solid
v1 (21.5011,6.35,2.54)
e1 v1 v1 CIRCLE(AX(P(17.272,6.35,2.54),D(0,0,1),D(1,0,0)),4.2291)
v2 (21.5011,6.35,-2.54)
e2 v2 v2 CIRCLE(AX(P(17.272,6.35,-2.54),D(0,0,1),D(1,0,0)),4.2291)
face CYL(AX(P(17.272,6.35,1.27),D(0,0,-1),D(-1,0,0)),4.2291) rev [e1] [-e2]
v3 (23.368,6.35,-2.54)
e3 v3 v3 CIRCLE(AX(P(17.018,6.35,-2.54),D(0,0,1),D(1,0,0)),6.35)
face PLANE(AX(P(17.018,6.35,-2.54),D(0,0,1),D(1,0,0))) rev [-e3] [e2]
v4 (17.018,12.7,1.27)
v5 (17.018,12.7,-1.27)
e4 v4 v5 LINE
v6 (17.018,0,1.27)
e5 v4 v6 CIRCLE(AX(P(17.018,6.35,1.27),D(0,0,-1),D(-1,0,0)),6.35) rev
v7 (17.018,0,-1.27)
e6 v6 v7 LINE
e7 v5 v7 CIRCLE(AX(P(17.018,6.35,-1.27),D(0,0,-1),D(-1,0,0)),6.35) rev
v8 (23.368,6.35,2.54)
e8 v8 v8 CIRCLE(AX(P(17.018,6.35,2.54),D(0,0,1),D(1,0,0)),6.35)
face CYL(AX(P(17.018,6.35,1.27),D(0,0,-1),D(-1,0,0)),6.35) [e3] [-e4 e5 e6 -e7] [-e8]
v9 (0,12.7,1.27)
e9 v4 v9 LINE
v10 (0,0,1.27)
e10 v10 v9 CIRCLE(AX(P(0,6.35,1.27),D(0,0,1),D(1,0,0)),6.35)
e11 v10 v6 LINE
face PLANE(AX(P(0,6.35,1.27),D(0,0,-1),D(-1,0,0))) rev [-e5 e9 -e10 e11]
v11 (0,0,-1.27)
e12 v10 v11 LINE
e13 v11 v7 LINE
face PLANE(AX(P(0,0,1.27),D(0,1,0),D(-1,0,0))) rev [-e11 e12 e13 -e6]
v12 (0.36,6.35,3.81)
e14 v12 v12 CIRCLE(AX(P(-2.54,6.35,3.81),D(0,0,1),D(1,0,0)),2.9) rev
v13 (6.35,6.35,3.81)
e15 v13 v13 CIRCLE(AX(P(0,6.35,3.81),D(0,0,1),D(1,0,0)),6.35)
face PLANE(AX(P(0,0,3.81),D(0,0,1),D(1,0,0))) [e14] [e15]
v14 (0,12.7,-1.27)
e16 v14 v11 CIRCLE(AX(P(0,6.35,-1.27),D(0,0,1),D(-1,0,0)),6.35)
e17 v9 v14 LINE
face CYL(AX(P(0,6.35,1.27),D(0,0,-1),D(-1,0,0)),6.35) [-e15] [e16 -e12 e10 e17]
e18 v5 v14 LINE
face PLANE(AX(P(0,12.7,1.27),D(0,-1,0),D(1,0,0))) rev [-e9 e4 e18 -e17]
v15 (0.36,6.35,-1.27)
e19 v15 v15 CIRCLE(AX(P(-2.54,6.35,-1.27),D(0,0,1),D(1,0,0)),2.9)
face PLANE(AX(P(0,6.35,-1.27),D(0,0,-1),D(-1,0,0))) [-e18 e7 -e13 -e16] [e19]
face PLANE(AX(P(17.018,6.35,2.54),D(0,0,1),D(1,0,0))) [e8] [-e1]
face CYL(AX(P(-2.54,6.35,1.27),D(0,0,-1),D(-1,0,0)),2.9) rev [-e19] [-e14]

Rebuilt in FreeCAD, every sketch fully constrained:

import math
import FreeCAD as App
import Part
import Sketcher
from FreeCAD import Vector
Q = App.Units.Quantity

doc = App.newDocument("Part")
body = doc.addObject("PartDesign::Body", "Body")

# Sketch on XY plane
sketch1 = doc.addObject("Sketcher::SketchObject", "Sketch")
body.addObject(sketch1)
sketch1.AttachmentSupport = (doc.XY_Plane, [""])
sketch1.MapMode = "FlatFace"
sketch1.addGeometry(Part.LineSegment(Vector(17, 12.7, 0), Vector(0, 12.7, 0)), False)
sketch1.addGeometry(Part.ArcOfCircle(Part.Circle(Vector(0, 6.3, 0), Vector(0, 0, 1), 6.3), math.radians(90), math.radians(270)), False)
sketch1.addGeometry(Part.LineSegment(Vector(0, 0, 0), Vector(17, 0, 0)), False)
sketch1.addGeometry(Part.ArcOfCircle(Part.Circle(Vector(17, 6.3, 0), Vector(0, 0, 1), 6.3), math.radians(-90), math.radians(90)), False)
sketch1.addGeometry(Part.Circle(Vector(17.3, 6.3, 0), Vector(0, 0, 1), 4.2), False)
sketch1.addGeometry(Part.Circle(Vector(-2.5, 6.3, 0), Vector(0, 0, 1), 2.9), False)
sketch1.addConstraint(Sketcher.Constraint("Tangent", 0, 2, 1, 1))
sketch1.addConstraint(Sketcher.Constraint("Tangent", 1, 2, 2, 1))
sketch1.addConstraint(Sketcher.Constraint("Tangent", 2, 2, 3, 1))
sketch1.addConstraint(Sketcher.Constraint("Tangent", 3, 2, 0, 1))
sketch1.addConstraint(Sketcher.Constraint("Horizontal", 0))
sketch1.addConstraint(Sketcher.Constraint("Horizontal", 2))
sketch1.addConstraint(Sketcher.Constraint("Coincident", 1, 2, -1, 1))
sketch1.addConstraint(Sketcher.Constraint("Horizontal", 3, 3, 4, 3))
sketch1.addConstraint(Sketcher.Constraint("Horizontal", 4, 3, 5, 3))
sketch1.addConstraint(Sketcher.Constraint("Radius", 1, Q("0.25 in")))
sketch1.addConstraint(Sketcher.Constraint("Diameter", 4, Q("0.333 in")))
sketch1.addConstraint(Sketcher.Constraint("DistanceX", 0, 2, 0, 1, Q("0.67 in")))
sketch1.addConstraint(Sketcher.Constraint("DistanceX", 5, 3, -1, 1, Q("0.1 in")))
sketch1.addConstraint(Sketcher.Constraint("Diameter", 5, Q("5.8 mm")))
sketch1.addConstraint(Sketcher.Constraint("DistanceX", -1, 1, 4, 3, Q("0.68 in")))
pad1 = doc.addObject("PartDesign::Pad", "Pad")
body.addObject(pad1)
pad1.Profile = sketch1
pad1.Length = Q("0.1 in")
pad1.Midplane = True

# Sketch on XY plane
sketch2 = doc.addObject("Sketcher::SketchObject", "Sketch001")
body.addObject(sketch2)
sketch2.AttachmentSupport = (doc.XY_Plane, [""])
sketch2.MapMode = "FlatFace"
sketch2.AttachmentOffset = App.Placement(Vector(0, 0, 0.15 * 25.4), App.Rotation())
sketch2.addGeometry(Part.ArcOfCircle(Part.Circle(Vector(0, 6.3, 0), Vector(0, 0, 1), 6.3), math.radians(-90), math.radians(0)), False)
sketch2.addGeometry(Part.ArcOfCircle(Part.Circle(Vector(0, 6.4, 0), Vector(0, 0, 1), 6.3), math.radians(0), math.radians(90)), False)
sketch2.addGeometry(Part.ArcOfCircle(Part.Circle(Vector(0, 6.3, 0), Vector(0, 0, 1), 6.3), math.radians(90), math.radians(270)), False)
sketch2.addGeometry(Part.Circle(Vector(-2.5, 6.3, 0), Vector(0, 0, 1), 2.9), False)
sketch2.addConstraint(Sketcher.Constraint("Tangent", 0, 2, 1, 1))
sketch2.addConstraint(Sketcher.Constraint("Tangent", 1, 2, 2, 1))
sketch2.addConstraint(Sketcher.Constraint("Tangent", 2, 2, 0, 1))
sketch2.addConstraint(Sketcher.Constraint("Coincident", 2, 2, -1, 1))
sketch2.addConstraint(Sketcher.Constraint("PointOnObject", 0, 3, -2))
sketch2.addConstraint(Sketcher.Constraint("PointOnObject", 1, 2, -2))
sketch2.addConstraint(Sketcher.Constraint("Horizontal", 2, 3, 3, 3))
sketch2.addConstraint(Sketcher.Constraint("Horizontal", 3, 3, 0, 2))
sketch2.addConstraint(Sketcher.Constraint("Radius", 0, Q("0.25 in")))
sketch2.addConstraint(Sketcher.Constraint("DistanceX", 3, 3, -1, 1, Q("0.1 in")))
sketch2.addConstraint(Sketcher.Constraint("Diameter", 3, Q("5.8 mm")))
pad2 = doc.addObject("PartDesign::Pad", "Pad001")
body.addObject(pad2)
pad2.Profile = sketch2
pad2.Length = Q("0.1 in")
pad2.Reversed = True

# Sketch on XY plane
sketch3 = doc.addObject("Sketcher::SketchObject", "Sketch002")
body.addObject(sketch3)
sketch3.AttachmentSupport = (doc.XY_Plane, [""])
sketch3.MapMode = "FlatFace"
sketch3.addGeometry(Part.Circle(Vector(17, 6.3, 0), Vector(0, 0, 1), 6.3), False)
sketch3.addGeometry(Part.Circle(Vector(17.3, 6.3, 0), Vector(0, 0, 1), 4.2), False)
sketch3.addConstraint(Sketcher.Constraint("Horizontal", 0, 3, 1, 3))
sketch3.addConstraint(Sketcher.Constraint("Diameter", 0, Q("0.5 in")))
sketch3.addConstraint(Sketcher.Constraint("Diameter", 1, Q("0.333 in")))
sketch3.addConstraint(Sketcher.Constraint("DistanceX", -1, 1, 0, 3, Q("0.67 in")))
sketch3.addConstraint(Sketcher.Constraint("DistanceY", -1, 1, 0, 3, Q("0.25 in")))
sketch3.addConstraint(Sketcher.Constraint("DistanceX", -1, 1, 1, 3, Q("0.68 in")))
pad3 = doc.addObject("PartDesign::Pad", "Pad002")
body.addObject(pad3)
pad3.Profile = sketch3
pad3.Length = Q("0.2 in")
pad3.Midplane = True

doc.recompute()
